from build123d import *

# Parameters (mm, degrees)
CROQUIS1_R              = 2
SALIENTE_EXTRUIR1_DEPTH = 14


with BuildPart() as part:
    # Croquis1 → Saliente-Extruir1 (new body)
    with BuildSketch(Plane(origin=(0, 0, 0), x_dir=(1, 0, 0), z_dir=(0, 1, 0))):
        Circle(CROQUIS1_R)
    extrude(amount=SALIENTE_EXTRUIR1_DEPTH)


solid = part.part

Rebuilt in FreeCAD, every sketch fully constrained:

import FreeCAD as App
import Part
import Sketcher
from FreeCAD import Vector
Q = App.Units.Quantity

doc = App.newDocument("Part")
params = doc.addObject("Spreadsheet::Sheet", "Params")
for row, (alias, value) in enumerate([
    ("sketch1_diameter", "4 mm"),
    ("pad1_length", "14 mm"),
], start=1):
    params.set(f"A{row}", alias)
    params.set(f"B{row}", "=" + value)
    params.setAlias(f"B{row}", alias)

body = doc.addObject("PartDesign::Body", "Body")

# Sketch on XZ plane
sketch1 = body.newObject("Sketcher::SketchObject", "Sketch")
sketch1.AttachmentSupport = (doc.getObject("XZ_Plane"), [""])
sketch1.MapMode = "FlatFace"
sketch1.addGeometry(Part.Circle(Vector(0, 0, 0), Vector(0, 0, 1), 2), False)
sketch1.addConstraint(Sketcher.Constraint("Coincident", 0, 3, -1, 1))
sketch1.addConstraint(Sketcher.Constraint("Diameter", 0, Q("4 mm")))
sketch1.setExpression("Constraints[1]", "Params.sketch1_diameter")
pad1 = body.newObject("PartDesign::Pad", "Pad")
pad1.Profile = sketch1
pad1.setExpression("Length", "Params.pad1_length")
pad1.Reversed = True

doc.recompute()
